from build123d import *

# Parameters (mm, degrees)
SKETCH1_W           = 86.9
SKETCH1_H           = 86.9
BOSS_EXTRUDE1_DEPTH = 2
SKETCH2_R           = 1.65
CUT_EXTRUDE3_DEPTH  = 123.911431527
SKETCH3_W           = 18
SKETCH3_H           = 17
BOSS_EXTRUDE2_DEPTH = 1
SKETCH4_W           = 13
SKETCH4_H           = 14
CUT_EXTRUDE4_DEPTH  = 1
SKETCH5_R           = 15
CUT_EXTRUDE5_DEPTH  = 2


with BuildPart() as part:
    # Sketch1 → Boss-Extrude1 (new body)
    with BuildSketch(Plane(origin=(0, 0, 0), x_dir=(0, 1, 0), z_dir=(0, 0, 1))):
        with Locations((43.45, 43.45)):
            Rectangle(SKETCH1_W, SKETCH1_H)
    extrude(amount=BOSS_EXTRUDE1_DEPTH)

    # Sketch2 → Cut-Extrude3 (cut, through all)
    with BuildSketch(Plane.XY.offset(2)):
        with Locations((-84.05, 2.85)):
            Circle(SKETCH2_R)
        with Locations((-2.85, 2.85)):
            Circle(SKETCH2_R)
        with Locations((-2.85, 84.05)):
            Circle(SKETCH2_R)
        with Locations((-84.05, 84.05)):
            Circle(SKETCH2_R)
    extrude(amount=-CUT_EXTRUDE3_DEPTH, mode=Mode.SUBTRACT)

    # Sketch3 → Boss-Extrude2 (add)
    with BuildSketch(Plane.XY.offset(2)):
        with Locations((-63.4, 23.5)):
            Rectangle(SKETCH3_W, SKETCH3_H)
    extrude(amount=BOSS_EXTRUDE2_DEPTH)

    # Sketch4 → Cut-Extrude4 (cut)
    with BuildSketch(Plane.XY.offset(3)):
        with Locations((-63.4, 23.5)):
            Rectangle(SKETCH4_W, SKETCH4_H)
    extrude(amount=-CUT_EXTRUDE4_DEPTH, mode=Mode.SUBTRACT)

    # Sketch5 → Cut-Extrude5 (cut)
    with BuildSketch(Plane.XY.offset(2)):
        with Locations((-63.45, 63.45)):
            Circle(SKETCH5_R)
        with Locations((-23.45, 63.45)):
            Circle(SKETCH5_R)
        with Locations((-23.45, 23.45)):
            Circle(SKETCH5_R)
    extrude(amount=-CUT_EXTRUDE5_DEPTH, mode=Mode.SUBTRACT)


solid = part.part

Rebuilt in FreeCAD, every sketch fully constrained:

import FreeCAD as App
import Part
import Sketcher
Q = App.Units.Quantity

doc = App.newDocument("Part")
body = doc.addObject("PartDesign::Body", "Body")

# Sketch on XY plane
sketch1 = body.newObject("Sketcher::SketchObject", "Sketch")
sketch1.AttachmentSupport = (doc.getObject("XY_Plane"), [""])
sketch1.MapMode = "FlatFace"
sketch1.addGeometry([
    Part.LineSegment(App.Vector(-86.9, 0, 0), App.Vector(0, 0, 0)),
    Part.LineSegment(App.Vector(0, 0, 0), App.Vector(0, 86.9, 0)),
    Part.LineSegment(App.Vector(0, 86.9, 0), App.Vector(-86.9, 86.9, 0)),
    Part.LineSegment(App.Vector(-86.9, 86.9, 0), App.Vector(-86.9, 0, 0)),
], False)
sketch1.addConstraint([
    Sketcher.Constraint("Coincident", 0, 2, 1, 1),
    Sketcher.Constraint("Coincident", 1, 2, 2, 1),
    Sketcher.Constraint("Coincident", 2, 2, 3, 1),
    Sketcher.Constraint("Coincident", 3, 2, 0, 1),
    Sketcher.Constraint("Horizontal", 0),
    Sketcher.Constraint("Vertical", 1),
    Sketcher.Constraint("Horizontal", 2),
    Sketcher.Constraint("Vertical", 3),
    Sketcher.Constraint("Coincident", 0, 2, -1, 1),
    Sketcher.Constraint("Equal", 2, 1),
    Sketcher.Constraint("DistanceX", 0, 1, 0, 2, Q("86.9 mm")),
])
pad1 = body.newObject("PartDesign::Pad", "Pad")
pad1.Profile = sketch1
pad1.Length = 2

# Sketch on XY plane
sketch2 = body.newObject("Sketcher::SketchObject", "Sketch001")
sketch2.AttachmentSupport = (doc.getObject("XY_Plane"), [""])
sketch2.MapMode = "FlatFace"
sketch2.AttachmentOffset = App.Placement(App.Vector(0, 0, 2), App.Rotation())
sketch2.addGeometry([
    Part.Circle(App.Vector(-84.05, 2.85, 0), App.Vector(0, 0, 1), 1.65),
    Part.Circle(App.Vector(-2.85, 2.85, 0), App.Vector(0, 0, 1), 1.65),
    Part.Circle(App.Vector(-2.85, 84.05, 0), App.Vector(0, 0, 1), 1.65),
    Part.Circle(App.Vector(-84.05, 84.05, 0), App.Vector(0, 0, 1), 1.65),
], False)
sketch2.addConstraint([
    Sketcher.Constraint("Equal", 0, 1),
    Sketcher.Constraint("Equal", 1, 2),
    Sketcher.Constraint("Equal", 2, 3),
    Sketcher.Constraint("Horizontal", 0, 3, 1, 3),
    Sketcher.Constraint("Horizontal", 2, 3, 3, 3),
    Sketcher.Constraint("Vertical", 1, 3, 2, 3),
    Sketcher.Constraint("Vertical", 0, 3, 3, 3),
    Sketcher.Constraint("Diameter", 0, Q("3.3 mm")),
    Sketcher.Constraint("DistanceX", 0, 3, 1, 3, Q("81.2 mm")),
    Sketcher.Constraint("DistanceY", 1, 3, 2, 3, Q("81.2 mm")),
    Sketcher.Constraint("DistanceX", 0, 3, -1, 1, Q("84.05 mm")),
    Sketcher.Constraint("DistanceY", -1, 1, 0, 3, Q("2.85 mm")),
])
pocket1 = body.newObject("PartDesign::Pocket", "Pocket")
pocket1.Profile = sketch2
pocket1.Type = "ThroughAll"

# Sketch on XY plane
sketch3 = body.newObject("Sketcher::SketchObject", "Sketch002")
sketch3.AttachmentSupport = (doc.getObject("XY_Plane"), [""])
sketch3.MapMode = "FlatFace"
sketch3.AttachmentOffset = App.Placement(App.Vector(0, 0, 2), App.Rotation())
sketch3.addGeometry([
    Part.LineSegment(App.Vector(-72.4, 32, 0), App.Vector(-72.4, 15, 0)),
    Part.LineSegment(App.Vector(-72.4, 15, 0), App.Vector(-54.4, 15, 0)),
    Part.LineSegment(App.Vector(-54.4, 15, 0), App.Vector(-54.4, 32, 0)),
    Part.LineSegment(App.Vector(-54.4, 32, 0), App.Vector(-72.4, 32, 0)),
], False)
sketch3.addConstraint([
    Sketcher.Constraint("Coincident", 0, 2, 1, 1),
    Sketcher.Constraint("Coincident", 1, 2, 2, 1),
    Sketcher.Constraint("Coincident", 2, 2, 3, 1),
    Sketcher.Constraint("Coincident", 3, 2, 0, 1),
    Sketcher.Constraint("Vertical", 0),
    Sketcher.Constraint("Horizontal", 1),
    Sketcher.Constraint("Vertical", 2),
    Sketcher.Constraint("Horizontal", 3),
    Sketcher.Constraint("DistanceX", 1, 1, 1, 2, Q("18 mm")),
    Sketcher.Constraint("DistanceY", 0, 2, 0, 1, Q("17 mm")),
    Sketcher.Constraint("DistanceY", -1, 1, 0, 2, Q("15 mm")),
    Sketcher.Constraint("DistanceX", 0, 2, -1, 1, Q("72.4 mm")),
])
pad2 = body.newObject("PartDesign::Pad", "Pad001")
pad2.Profile = sketch3
pad2.Length = 1

# Sketch on XY plane
sketch4 = body.newObject("Sketcher::SketchObject", "Sketch003")
sketch4.AttachmentSupport = (doc.getObject("XY_Plane"), [""])
sketch4.MapMode = "FlatFace"
sketch4.AttachmentOffset = App.Placement(App.Vector(0, 0, 3), App.Rotation())
sketch4.addGeometry([
    Part.LineSegment(App.Vector(-69.9, 30.5, 0), App.Vector(-69.9, 16.5, 0)),
    Part.LineSegment(App.Vector(-69.9, 16.5, 0), App.Vector(-56.9, 16.5, 0)),
    Part.LineSegment(App.Vector(-56.9, 16.5, 0), App.Vector(-56.9, 30.5, 0)),
    Part.LineSegment(App.Vector(-56.9, 30.5, 0), App.Vector(-69.9, 30.5, 0)),
], False)
sketch4.addConstraint([
    Sketcher.Constraint("Coincident", 0, 2, 1, 1),
    Sketcher.Constraint("Coincident", 1, 2, 2, 1),
    Sketcher.Constraint("Coincident", 2, 2, 3, 1),
    Sketcher.Constraint("Coincident", 3, 2, 0, 1),
    Sketcher.Constraint("Vertical", 0),
    Sketcher.Constraint("Horizontal", 1),
    Sketcher.Constraint("Vertical", 2),
    Sketcher.Constraint("Horizontal", 3),
    Sketcher.Constraint("DistanceX", 1, 1, 1, 2, Q("13 mm")),
    Sketcher.Constraint("DistanceY", 0, 2, 0, 1, Q("14 mm")),
    Sketcher.Constraint("DistanceX", 0, 2, -1, 1, Q("69.9 mm")),
    Sketcher.Constraint("DistanceY", -1, 1, 0, 2, Q("16.5 mm")),
])
pocket2 = body.newObject("PartDesign::Pocket", "Pocket001")
pocket2.Profile = sketch4
pocket2.Length = 1

# Sketch on XY plane
sketch5 = body.newObject("Sketcher::SketchObject", "Sketch004")
sketch5.AttachmentSupport = (doc.getObject("XY_Plane"), [""])
sketch5.MapMode = "FlatFace"
sketch5.AttachmentOffset = App.Placement(App.Vector(0, 0, 2), App.Rotation())
sketch5.addGeometry([
    Part.Circle(App.Vector(-63.45, 63.45, 0), App.Vector(0, 0, 1), 15),
    Part.Circle(App.Vector(-23.45, 63.45, 0), App.Vector(0, 0, 1), 15),
    Part.Circle(App.Vector(-23.45, 23.45, 0), App.Vector(0, 0, 1), 15),
], False)
sketch5.addConstraint([
    Sketcher.Constraint("Equal", 0, 1),
    Sketcher.Constraint("Equal", 1, 2),
    Sketcher.Constraint("Horizontal", 0, 3, 1, 3),
    Sketcher.Constraint("Vertical", 1, 3, 2, 3),
    Sketcher.Constraint("Diameter", 0, Q("30 mm")),
    Sketcher.Constraint("DistanceX", 0, 3, 1, 3, Q("40 mm")),
    Sketcher.Constraint("DistanceY", 2, 3, 1, 3, Q("40 mm")),
    Sketcher.Constraint("DistanceX", 0, 3, -1, 1, Q("63.45 mm")),
    Sketcher.Constraint("DistanceY", -1, 1, 0, 3, Q("63.45 mm")),
])
pocket3 = body.newObject("PartDesign::Pocket", "Pocket002")
pocket3.Profile = sketch5
pocket3.Length = 2

doc.recompute()
